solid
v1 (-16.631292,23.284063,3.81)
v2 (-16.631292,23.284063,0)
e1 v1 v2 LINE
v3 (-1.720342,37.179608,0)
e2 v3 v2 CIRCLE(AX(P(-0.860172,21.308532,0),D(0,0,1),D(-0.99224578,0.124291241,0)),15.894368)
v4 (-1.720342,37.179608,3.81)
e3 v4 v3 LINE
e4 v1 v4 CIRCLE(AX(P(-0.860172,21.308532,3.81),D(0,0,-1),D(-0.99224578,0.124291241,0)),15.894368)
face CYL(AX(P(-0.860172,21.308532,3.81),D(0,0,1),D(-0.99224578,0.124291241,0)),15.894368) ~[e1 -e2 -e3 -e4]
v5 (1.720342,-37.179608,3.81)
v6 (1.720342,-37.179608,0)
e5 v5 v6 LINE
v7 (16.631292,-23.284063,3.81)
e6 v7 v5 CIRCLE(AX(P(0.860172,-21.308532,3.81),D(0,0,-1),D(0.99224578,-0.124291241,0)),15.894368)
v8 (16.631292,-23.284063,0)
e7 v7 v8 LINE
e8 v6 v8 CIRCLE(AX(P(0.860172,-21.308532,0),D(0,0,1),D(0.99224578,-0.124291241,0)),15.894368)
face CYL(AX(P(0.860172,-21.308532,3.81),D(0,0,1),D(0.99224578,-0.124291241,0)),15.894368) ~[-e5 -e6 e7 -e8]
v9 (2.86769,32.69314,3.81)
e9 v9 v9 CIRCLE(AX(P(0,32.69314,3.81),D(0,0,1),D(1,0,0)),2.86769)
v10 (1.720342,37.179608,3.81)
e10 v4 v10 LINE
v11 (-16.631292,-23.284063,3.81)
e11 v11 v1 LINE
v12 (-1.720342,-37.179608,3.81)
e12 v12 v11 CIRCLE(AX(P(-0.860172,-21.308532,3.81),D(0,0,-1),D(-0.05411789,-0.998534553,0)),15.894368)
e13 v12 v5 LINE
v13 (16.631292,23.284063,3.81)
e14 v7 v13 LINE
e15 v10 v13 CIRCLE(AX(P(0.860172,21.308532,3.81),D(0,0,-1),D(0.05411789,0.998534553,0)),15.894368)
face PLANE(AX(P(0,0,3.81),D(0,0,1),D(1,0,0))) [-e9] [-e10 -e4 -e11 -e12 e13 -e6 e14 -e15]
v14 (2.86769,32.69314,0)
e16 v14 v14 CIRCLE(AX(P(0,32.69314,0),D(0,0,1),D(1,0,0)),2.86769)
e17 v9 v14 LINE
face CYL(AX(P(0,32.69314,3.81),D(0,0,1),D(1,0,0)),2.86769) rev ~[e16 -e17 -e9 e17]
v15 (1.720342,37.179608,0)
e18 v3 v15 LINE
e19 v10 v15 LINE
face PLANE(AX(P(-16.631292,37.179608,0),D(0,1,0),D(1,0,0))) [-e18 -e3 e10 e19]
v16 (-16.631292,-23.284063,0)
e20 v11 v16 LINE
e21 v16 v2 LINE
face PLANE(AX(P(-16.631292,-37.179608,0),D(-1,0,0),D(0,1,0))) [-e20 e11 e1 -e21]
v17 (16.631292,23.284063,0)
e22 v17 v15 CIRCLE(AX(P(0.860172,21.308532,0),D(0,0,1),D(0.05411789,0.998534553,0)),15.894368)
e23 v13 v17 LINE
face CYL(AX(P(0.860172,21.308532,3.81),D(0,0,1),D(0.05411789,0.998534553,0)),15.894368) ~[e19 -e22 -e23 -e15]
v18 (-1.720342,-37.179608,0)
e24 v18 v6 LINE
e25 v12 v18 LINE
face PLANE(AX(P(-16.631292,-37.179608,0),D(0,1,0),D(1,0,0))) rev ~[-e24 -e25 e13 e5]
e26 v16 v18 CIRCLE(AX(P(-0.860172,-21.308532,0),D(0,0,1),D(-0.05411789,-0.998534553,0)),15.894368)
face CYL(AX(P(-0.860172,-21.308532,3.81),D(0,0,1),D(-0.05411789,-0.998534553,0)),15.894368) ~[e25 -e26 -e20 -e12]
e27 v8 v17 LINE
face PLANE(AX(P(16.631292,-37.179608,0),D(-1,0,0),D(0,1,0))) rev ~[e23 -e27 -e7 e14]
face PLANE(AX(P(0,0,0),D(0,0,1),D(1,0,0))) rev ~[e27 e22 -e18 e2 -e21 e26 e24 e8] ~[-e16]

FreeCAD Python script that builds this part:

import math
import FreeCAD as App
import Part
import Sketcher
Q = App.Units.Quantity


def add_polygon(sketch, points):
    """Adds a closed chain of lines whose ends are joined by coincident constraints."""
    first, n = sketch.GeometryCount, len(points)
    for a, b in zip(points, points[1:] + points[:1]):
        sketch.addGeometry(Part.LineSegment(App.Vector(*a, 0), App.Vector(*b, 0)), False)
    for i in range(n):
        sketch.addConstraint(Sketcher.Constraint("Coincident", first + i, 2, first + (i + 1) % n, 1))

doc = App.newDocument("Part")
body = doc.addObject("PartDesign::Body", "Body")

# Sketch on XY plane
sketch1 = doc.addObject("Sketcher::SketchObject", "Sketch")
body.addObject(sketch1)
sketch1.AttachmentSupport = (doc.XY_Plane, [""])
sketch1.MapMode = "FlatFace"
add_polygon(sketch1, [(-16.631292, 37.179608), (-16.631292, -37.179608), (16.631292, -37.179608), (16.631292, 37.179608)])  # lines 0-3
sketch1.addConstraint([
    Sketcher.Constraint("Vertical", 0),
    Sketcher.Constraint("Horizontal", 1),
    Sketcher.Constraint("Vertical", 2),
    Sketcher.Constraint("Horizontal", 3),
    Sketcher.Constraint("Symmetric", 0, 2, 2, 2, -1, 1),
    Sketcher.Constraint("DistanceX", 1, 1, 1, 2, Q("33.262584 mm")),
    Sketcher.Constraint("DistanceY", 0, 2, 0, 1, Q("74.359216 mm")),
])
pad1 = doc.addObject("PartDesign::Pad", "Pad")
body.addObject(pad1)
pad1.Profile = sketch1
pad1.Length = Q("0.15 in")

# Sketch on XY plane
sketch2 = doc.addObject("Sketcher::SketchObject", "Sketch001")
body.addObject(sketch2)
sketch2.AttachmentSupport = (doc.XY_Plane, [""])
sketch2.MapMode = "FlatFace"
sketch2.AttachmentOffset = App.Placement(App.Vector(0, 0, 0.15 * 25.4), App.Rotation())
sketch2.addGeometry([
    Part.ArcOfCircle(Part.Circle(App.Vector(0.860172, 21.308532, 0), App.Vector(0, 0, 1), 15.894368), math.radians(7.139828), math.radians(86.897758)),  # 0
    Part.LineSegment(App.Vector(16.631292, 23.284063, 0), App.Vector(16.631292, 37.179608, 0)),  # 1
    Part.LineSegment(App.Vector(16.631292, 37.179608, 0), App.Vector(1.720342, 37.179608, 0)),  # 2
    Part.ArcOfCircle(Part.Circle(App.Vector(-0.860172, 21.308532, 0), App.Vector(0, 0, 1), 15.894368), math.radians(93.102242), math.radians(172.860172)),  # 3
    Part.LineSegment(App.Vector(-1.720342, 37.179608, 0), App.Vector(-16.631292, 37.179608, 0)),  # 4
    Part.LineSegment(App.Vector(-16.631292, 37.179608, 0), App.Vector(-16.631292, 23.284063, 0)),  # 5
    Part.LineSegment(App.Vector(-16.631292, -37.179608, 0), App.Vector(-1.720342, -37.179608, 0)),  # 6
    Part.ArcOfCircle(Part.Circle(App.Vector(-0.860172, -21.308532, 0), App.Vector(0, 0, 1), 15.894368), math.radians(-172.860172), math.radians(-93.102242)),  # 7
    Part.LineSegment(App.Vector(-16.631292, -23.284063, 0), App.Vector(-16.631292, -37.179608, 0)),  # 8
    Part.LineSegment(App.Vector(16.631292, -37.179608, 0), App.Vector(16.631292, -23.284063, 0)),  # 9
    Part.ArcOfCircle(Part.Circle(App.Vector(0.860172, -21.308532, 0), App.Vector(0, 0, 1), 15.894368), math.radians(-86.897758), math.radians(-7.139828)),  # 10
    Part.LineSegment(App.Vector(1.720342, -37.179608, 0), App.Vector(16.631292, -37.179608, 0)),  # 11
    Part.Circle(App.Vector(0, 32.69314, 0), App.Vector(0, 0, 1), 2.86769),  # 12
], False)
sketch2.addConstraint([
    Sketcher.Constraint("Coincident", 0, 1, 1, 1),
    Sketcher.Constraint("Coincident", 1, 2, 2, 1),
    Sketcher.Constraint("Coincident", 2, 2, 0, 2),
    Sketcher.Constraint("Coincident", 3, 1, 4, 1),
    Sketcher.Constraint("Coincident", 4, 2, 5, 1),
    Sketcher.Constraint("Coincident", 5, 2, 3, 2),
    Sketcher.Constraint("Coincident", 6, 2, 7, 2),
    Sketcher.Constraint("Coincident", 7, 1, 8, 1),
    Sketcher.Constraint("Coincident", 8, 2, 6, 1),
    Sketcher.Constraint("Coincident", 9, 2, 10, 2),
    Sketcher.Constraint("Coincident", 10, 1, 11, 1),
    Sketcher.Constraint("Coincident", 11, 2, 9, 1),
    Sketcher.Constraint("Vertical", 1),
    Sketcher.Constraint("Horizontal", 2),
    Sketcher.Constraint("Horizontal", 4),
    Sketcher.Constraint("Vertical", 5),
    Sketcher.Constraint("Horizontal", 6),
    Sketcher.Constraint("Vertical", 8),
    Sketcher.Constraint("Vertical", 9),
    Sketcher.Constraint("Horizontal", 11),
    Sketcher.Constraint("Equal", 0, 3),
    Sketcher.Constraint("Equal", 3, 7),
    Sketcher.Constraint("Equal", 7, 10),
    Sketcher.Constraint("Symmetric", 0, 3, 7, 3, -1, 1),
    Sketcher.Constraint("Symmetric", 3, 3, 10, 3, -1, 1),
    Sketcher.Constraint("Symmetric", 1, 2, 8, 2, -1, 1),
    Sketcher.Constraint("Symmetric", 4, 2, 11, 2, -1, 1),
    Sketcher.Constraint("Symmetric", 0, 3, 3, 3, -2),
    Sketcher.Constraint("Symmetric", 1, 2, 4, 2, -2),
    Sketcher.Constraint("PointOnObject", 12, 3, -2),
    Sketcher.Constraint("Diameter", 12, Q("5.73538 mm")),
    Sketcher.Constraint("Radius", 0, Q("15.894368 mm")),
    Sketcher.Constraint("DistanceX", 2, 2, 2, 1, Q("14.91095 mm")),
    Sketcher.Constraint("DistanceY", 1, 1, 1, 2, Q("13.895545 mm")),
    Sketcher.Constraint("DistanceY", -1, 1, 12, 3, Q("32.69314 mm")),
    Sketcher.Constraint("DistanceX", -1, 1, 1, 2, Q("16.631292 mm")),
    Sketcher.Constraint("DistanceY", -1, 1, 1, 2, Q("37.179608 mm")),
])
pocket1 = doc.addObject("PartDesign::Pocket", "Pocket")
body.addObject(pocket1)
pocket1.Profile = sketch2
pocket1.Type = "ThroughAll"

doc.recompute()
